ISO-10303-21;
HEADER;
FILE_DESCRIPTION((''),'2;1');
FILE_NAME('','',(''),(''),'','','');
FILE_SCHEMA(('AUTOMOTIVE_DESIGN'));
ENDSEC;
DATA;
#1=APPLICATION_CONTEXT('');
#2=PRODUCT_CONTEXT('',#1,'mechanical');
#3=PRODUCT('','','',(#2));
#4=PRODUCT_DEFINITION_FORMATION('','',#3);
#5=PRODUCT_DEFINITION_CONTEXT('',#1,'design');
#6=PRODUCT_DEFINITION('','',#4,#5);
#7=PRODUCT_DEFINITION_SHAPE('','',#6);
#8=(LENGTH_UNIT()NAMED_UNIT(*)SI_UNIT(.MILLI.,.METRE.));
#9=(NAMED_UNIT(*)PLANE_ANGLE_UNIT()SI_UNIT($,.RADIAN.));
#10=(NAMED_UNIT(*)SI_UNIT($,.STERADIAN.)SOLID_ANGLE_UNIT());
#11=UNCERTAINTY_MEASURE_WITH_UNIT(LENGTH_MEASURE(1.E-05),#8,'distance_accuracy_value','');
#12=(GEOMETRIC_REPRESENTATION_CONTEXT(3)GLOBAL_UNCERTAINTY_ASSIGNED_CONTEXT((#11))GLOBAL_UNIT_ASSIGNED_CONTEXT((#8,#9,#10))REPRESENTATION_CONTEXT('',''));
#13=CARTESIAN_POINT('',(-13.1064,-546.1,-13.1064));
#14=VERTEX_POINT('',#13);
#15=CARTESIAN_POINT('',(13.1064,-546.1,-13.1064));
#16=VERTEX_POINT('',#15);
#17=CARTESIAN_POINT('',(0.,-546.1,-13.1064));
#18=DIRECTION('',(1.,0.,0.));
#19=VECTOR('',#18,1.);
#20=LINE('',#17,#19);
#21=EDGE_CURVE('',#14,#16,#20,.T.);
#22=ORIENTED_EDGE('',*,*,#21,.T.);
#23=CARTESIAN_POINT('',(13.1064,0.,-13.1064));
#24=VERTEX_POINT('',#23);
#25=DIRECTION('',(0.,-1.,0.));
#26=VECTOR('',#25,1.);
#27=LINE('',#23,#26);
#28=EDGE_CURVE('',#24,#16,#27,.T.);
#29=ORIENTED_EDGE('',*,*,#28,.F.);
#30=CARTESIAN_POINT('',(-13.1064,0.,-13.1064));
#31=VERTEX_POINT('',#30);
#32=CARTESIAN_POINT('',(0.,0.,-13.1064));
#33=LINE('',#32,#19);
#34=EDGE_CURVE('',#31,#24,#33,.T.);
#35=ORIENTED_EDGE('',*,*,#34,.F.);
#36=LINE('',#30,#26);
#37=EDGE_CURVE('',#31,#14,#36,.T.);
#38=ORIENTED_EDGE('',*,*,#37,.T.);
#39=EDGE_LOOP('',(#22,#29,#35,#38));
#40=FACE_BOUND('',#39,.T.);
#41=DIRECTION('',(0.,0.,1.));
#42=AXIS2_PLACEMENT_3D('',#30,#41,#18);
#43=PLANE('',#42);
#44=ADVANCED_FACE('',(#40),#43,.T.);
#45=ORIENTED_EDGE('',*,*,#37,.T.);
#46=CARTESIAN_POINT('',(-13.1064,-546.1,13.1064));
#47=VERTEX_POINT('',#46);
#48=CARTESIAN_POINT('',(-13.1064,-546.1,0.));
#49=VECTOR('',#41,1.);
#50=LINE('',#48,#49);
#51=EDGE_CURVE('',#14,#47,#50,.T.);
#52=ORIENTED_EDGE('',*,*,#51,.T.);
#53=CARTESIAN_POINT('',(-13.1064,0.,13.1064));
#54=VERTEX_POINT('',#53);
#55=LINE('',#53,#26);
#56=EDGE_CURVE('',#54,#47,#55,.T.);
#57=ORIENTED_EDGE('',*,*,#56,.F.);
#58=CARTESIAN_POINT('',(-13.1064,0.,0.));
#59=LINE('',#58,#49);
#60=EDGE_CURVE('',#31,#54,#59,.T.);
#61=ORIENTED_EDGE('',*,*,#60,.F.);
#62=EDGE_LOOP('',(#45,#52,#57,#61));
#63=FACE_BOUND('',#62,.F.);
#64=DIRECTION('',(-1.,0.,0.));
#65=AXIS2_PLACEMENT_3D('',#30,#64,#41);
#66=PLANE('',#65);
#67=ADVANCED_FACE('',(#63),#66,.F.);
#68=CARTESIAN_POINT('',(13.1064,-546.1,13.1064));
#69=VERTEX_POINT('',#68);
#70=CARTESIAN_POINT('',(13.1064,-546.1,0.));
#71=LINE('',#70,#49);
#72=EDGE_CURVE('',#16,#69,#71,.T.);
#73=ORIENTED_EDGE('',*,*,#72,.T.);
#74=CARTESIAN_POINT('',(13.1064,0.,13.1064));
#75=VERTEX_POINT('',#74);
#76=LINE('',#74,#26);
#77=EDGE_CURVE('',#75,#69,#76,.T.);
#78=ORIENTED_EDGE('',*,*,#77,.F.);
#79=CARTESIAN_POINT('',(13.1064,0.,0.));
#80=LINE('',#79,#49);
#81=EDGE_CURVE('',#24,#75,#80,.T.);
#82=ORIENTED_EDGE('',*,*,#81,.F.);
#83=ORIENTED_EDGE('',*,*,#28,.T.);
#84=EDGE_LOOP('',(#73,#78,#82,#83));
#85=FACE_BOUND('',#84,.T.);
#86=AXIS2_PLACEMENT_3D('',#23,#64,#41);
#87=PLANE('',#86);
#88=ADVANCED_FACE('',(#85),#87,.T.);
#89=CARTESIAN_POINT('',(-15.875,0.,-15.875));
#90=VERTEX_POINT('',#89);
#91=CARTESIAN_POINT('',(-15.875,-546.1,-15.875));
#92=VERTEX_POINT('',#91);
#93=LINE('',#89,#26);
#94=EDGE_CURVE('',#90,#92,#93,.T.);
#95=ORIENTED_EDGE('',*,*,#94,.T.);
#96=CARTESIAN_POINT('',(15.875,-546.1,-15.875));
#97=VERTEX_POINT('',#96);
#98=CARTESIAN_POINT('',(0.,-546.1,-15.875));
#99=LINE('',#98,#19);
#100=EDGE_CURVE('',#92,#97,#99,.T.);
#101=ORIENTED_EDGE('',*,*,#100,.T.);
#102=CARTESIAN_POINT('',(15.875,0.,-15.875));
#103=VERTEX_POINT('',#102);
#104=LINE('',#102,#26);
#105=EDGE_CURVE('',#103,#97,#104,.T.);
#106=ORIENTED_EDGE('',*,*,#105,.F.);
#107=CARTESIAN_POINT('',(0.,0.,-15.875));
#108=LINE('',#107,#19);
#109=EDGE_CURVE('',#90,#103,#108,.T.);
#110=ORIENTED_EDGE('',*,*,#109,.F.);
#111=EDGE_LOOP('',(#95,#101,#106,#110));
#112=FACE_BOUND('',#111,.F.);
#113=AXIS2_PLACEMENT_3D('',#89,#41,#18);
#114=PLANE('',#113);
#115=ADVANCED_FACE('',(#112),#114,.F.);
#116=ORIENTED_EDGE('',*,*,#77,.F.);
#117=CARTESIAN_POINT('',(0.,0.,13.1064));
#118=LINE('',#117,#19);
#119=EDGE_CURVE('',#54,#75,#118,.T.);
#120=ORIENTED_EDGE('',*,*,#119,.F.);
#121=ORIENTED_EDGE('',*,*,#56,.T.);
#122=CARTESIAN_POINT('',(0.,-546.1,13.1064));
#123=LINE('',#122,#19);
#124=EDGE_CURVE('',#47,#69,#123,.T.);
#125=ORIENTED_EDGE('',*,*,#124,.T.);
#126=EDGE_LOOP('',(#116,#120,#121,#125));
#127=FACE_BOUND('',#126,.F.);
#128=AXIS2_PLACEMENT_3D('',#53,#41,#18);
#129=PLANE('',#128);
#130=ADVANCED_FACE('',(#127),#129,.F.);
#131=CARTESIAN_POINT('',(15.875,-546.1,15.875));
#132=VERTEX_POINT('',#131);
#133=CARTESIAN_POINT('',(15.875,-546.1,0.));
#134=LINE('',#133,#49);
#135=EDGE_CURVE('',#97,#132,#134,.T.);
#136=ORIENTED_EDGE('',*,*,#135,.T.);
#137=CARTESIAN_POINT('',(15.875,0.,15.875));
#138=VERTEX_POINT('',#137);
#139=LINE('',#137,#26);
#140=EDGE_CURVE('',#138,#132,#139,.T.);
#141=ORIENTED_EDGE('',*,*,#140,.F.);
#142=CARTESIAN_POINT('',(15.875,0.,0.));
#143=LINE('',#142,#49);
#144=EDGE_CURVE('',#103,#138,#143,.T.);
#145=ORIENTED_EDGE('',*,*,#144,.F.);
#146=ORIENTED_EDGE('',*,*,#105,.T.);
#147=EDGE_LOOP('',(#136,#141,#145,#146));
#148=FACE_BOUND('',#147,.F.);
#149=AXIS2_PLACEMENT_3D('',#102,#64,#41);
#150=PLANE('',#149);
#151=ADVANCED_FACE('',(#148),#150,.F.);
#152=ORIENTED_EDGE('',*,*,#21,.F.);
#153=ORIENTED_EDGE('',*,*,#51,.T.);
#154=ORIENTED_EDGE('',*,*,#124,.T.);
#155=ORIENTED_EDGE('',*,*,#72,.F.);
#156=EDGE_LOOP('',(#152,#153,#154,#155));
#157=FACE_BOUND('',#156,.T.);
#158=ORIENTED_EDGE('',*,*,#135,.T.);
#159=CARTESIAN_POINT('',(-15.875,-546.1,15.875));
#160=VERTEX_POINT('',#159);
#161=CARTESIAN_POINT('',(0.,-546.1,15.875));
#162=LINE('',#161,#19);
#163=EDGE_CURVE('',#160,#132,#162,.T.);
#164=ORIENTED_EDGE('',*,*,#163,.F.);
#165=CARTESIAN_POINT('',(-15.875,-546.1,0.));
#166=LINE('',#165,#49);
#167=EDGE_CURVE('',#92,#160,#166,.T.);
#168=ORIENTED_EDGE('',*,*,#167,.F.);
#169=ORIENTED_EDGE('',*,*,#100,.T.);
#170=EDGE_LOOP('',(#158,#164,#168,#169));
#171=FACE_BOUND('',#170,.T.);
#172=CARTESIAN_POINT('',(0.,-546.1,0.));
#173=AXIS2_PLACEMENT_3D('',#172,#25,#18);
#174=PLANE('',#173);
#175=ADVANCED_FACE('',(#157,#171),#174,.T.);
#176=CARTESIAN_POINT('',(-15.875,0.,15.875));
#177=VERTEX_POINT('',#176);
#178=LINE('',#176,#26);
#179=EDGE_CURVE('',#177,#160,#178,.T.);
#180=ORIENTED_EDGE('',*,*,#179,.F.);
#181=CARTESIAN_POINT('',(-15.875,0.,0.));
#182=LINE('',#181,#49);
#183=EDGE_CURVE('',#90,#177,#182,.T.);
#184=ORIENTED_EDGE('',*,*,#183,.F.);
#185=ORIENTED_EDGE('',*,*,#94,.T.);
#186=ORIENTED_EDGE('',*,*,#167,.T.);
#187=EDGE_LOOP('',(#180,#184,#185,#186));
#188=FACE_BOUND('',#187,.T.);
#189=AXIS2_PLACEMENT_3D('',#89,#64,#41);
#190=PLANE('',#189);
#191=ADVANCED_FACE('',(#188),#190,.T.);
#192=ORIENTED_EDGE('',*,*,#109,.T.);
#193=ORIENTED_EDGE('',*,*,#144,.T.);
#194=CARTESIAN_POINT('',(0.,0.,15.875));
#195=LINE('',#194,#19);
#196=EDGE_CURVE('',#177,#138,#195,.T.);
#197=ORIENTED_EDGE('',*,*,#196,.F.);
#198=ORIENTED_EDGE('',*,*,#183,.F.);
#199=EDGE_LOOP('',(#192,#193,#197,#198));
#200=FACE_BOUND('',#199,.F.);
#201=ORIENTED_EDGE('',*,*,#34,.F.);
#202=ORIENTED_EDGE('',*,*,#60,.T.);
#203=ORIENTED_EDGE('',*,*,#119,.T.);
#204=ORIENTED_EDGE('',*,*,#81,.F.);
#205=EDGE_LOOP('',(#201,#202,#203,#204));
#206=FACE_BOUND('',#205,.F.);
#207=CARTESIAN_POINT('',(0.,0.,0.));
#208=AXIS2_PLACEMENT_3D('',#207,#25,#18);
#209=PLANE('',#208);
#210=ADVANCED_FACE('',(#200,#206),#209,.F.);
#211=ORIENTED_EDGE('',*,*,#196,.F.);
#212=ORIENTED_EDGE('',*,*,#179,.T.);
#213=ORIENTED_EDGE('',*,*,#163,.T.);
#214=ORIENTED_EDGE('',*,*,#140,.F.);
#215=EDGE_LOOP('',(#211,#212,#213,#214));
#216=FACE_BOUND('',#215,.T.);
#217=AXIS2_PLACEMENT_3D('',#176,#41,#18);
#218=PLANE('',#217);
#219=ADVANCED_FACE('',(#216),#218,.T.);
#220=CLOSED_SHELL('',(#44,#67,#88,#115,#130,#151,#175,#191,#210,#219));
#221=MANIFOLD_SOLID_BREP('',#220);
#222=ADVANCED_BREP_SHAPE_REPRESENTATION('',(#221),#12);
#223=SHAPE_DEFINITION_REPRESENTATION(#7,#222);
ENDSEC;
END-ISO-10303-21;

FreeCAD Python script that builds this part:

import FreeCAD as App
import Part
import Sketcher
from FreeCAD import Vector
Q = App.Units.Quantity


def add_polygon(sketch, points):
    """Adds a closed chain of lines whose ends are joined by coincident constraints."""
    first, n = sketch.GeometryCount, len(points)
    for a, b in zip(points, points[1:] + points[:1]):
        sketch.addGeometry(Part.LineSegment(App.Vector(*a, 0), App.Vector(*b, 0)), False)
    for i in range(n):
        sketch.addConstraint(Sketcher.Constraint("Coincident", first + i, 2, first + (i + 1) % n, 1))

doc = App.newDocument("Part")
params = doc.addObject("Spreadsheet::Sheet", "Params")
for row, (alias, value) in enumerate([
    ("sketch1_width", "1.25 in"),
    ("sketch1_width2", "1.032 in"),
    ("pad1_length", "21.5 in"),
], start=1):
    params.set(f"A{row}", alias)
    params.set(f"B{row}", "=" + value)
    params.setAlias(f"B{row}", alias)

body = doc.addObject("PartDesign::Body", "Body")

# Sketch on XZ plane
sketch1 = body.newObject("Sketcher::SketchObject", "Sketch")
sketch1.AttachmentSupport = (doc.getObject("XZ_Plane"), [""])
sketch1.MapMode = "FlatFace"
add_polygon(sketch1, [(-16, 16), (-16, -16), (16, -16), (16, 16)])  # lines 0-3
add_polygon(sketch1, [(13, -13), (-13, -13), (-13, 13), (13, 13)])  # lines 4-7
sketch1.addConstraint([
    Sketcher.Constraint("Vertical", 0),
    Sketcher.Constraint("Horizontal", 1),
    Sketcher.Constraint("Vertical", 2),
    Sketcher.Constraint("Horizontal", 3),
    Sketcher.Constraint("Horizontal", 4),
    Sketcher.Constraint("Vertical", 5),
    Sketcher.Constraint("Horizontal", 6),
    Sketcher.Constraint("Vertical", 7),
    Sketcher.Constraint("Symmetric", 0, 2, 2, 2, -1, 1),
    Sketcher.Constraint("Symmetric", 4, 2, 6, 2, -1, 1),
    Sketcher.Constraint("Equal", 3, 0),
    Sketcher.Constraint("Equal", 6, 5),
    Sketcher.Constraint("DistanceX", 1, 1, 1, 2, Q("1.25 in")),
    Sketcher.Constraint("DistanceX", 4, 2, 4, 1, Q("1.032 in")),
])
sketch1.setExpression("Constraints[20]", "Params.sketch1_width")
sketch1.setExpression("Constraints[21]", "Params.sketch1_width2")
pad1 = body.newObject("PartDesign::Pad", "Pad")
pad1.Profile = sketch1
pad1.setExpression("Length", "Params.pad1_length")

doc.recompute()
